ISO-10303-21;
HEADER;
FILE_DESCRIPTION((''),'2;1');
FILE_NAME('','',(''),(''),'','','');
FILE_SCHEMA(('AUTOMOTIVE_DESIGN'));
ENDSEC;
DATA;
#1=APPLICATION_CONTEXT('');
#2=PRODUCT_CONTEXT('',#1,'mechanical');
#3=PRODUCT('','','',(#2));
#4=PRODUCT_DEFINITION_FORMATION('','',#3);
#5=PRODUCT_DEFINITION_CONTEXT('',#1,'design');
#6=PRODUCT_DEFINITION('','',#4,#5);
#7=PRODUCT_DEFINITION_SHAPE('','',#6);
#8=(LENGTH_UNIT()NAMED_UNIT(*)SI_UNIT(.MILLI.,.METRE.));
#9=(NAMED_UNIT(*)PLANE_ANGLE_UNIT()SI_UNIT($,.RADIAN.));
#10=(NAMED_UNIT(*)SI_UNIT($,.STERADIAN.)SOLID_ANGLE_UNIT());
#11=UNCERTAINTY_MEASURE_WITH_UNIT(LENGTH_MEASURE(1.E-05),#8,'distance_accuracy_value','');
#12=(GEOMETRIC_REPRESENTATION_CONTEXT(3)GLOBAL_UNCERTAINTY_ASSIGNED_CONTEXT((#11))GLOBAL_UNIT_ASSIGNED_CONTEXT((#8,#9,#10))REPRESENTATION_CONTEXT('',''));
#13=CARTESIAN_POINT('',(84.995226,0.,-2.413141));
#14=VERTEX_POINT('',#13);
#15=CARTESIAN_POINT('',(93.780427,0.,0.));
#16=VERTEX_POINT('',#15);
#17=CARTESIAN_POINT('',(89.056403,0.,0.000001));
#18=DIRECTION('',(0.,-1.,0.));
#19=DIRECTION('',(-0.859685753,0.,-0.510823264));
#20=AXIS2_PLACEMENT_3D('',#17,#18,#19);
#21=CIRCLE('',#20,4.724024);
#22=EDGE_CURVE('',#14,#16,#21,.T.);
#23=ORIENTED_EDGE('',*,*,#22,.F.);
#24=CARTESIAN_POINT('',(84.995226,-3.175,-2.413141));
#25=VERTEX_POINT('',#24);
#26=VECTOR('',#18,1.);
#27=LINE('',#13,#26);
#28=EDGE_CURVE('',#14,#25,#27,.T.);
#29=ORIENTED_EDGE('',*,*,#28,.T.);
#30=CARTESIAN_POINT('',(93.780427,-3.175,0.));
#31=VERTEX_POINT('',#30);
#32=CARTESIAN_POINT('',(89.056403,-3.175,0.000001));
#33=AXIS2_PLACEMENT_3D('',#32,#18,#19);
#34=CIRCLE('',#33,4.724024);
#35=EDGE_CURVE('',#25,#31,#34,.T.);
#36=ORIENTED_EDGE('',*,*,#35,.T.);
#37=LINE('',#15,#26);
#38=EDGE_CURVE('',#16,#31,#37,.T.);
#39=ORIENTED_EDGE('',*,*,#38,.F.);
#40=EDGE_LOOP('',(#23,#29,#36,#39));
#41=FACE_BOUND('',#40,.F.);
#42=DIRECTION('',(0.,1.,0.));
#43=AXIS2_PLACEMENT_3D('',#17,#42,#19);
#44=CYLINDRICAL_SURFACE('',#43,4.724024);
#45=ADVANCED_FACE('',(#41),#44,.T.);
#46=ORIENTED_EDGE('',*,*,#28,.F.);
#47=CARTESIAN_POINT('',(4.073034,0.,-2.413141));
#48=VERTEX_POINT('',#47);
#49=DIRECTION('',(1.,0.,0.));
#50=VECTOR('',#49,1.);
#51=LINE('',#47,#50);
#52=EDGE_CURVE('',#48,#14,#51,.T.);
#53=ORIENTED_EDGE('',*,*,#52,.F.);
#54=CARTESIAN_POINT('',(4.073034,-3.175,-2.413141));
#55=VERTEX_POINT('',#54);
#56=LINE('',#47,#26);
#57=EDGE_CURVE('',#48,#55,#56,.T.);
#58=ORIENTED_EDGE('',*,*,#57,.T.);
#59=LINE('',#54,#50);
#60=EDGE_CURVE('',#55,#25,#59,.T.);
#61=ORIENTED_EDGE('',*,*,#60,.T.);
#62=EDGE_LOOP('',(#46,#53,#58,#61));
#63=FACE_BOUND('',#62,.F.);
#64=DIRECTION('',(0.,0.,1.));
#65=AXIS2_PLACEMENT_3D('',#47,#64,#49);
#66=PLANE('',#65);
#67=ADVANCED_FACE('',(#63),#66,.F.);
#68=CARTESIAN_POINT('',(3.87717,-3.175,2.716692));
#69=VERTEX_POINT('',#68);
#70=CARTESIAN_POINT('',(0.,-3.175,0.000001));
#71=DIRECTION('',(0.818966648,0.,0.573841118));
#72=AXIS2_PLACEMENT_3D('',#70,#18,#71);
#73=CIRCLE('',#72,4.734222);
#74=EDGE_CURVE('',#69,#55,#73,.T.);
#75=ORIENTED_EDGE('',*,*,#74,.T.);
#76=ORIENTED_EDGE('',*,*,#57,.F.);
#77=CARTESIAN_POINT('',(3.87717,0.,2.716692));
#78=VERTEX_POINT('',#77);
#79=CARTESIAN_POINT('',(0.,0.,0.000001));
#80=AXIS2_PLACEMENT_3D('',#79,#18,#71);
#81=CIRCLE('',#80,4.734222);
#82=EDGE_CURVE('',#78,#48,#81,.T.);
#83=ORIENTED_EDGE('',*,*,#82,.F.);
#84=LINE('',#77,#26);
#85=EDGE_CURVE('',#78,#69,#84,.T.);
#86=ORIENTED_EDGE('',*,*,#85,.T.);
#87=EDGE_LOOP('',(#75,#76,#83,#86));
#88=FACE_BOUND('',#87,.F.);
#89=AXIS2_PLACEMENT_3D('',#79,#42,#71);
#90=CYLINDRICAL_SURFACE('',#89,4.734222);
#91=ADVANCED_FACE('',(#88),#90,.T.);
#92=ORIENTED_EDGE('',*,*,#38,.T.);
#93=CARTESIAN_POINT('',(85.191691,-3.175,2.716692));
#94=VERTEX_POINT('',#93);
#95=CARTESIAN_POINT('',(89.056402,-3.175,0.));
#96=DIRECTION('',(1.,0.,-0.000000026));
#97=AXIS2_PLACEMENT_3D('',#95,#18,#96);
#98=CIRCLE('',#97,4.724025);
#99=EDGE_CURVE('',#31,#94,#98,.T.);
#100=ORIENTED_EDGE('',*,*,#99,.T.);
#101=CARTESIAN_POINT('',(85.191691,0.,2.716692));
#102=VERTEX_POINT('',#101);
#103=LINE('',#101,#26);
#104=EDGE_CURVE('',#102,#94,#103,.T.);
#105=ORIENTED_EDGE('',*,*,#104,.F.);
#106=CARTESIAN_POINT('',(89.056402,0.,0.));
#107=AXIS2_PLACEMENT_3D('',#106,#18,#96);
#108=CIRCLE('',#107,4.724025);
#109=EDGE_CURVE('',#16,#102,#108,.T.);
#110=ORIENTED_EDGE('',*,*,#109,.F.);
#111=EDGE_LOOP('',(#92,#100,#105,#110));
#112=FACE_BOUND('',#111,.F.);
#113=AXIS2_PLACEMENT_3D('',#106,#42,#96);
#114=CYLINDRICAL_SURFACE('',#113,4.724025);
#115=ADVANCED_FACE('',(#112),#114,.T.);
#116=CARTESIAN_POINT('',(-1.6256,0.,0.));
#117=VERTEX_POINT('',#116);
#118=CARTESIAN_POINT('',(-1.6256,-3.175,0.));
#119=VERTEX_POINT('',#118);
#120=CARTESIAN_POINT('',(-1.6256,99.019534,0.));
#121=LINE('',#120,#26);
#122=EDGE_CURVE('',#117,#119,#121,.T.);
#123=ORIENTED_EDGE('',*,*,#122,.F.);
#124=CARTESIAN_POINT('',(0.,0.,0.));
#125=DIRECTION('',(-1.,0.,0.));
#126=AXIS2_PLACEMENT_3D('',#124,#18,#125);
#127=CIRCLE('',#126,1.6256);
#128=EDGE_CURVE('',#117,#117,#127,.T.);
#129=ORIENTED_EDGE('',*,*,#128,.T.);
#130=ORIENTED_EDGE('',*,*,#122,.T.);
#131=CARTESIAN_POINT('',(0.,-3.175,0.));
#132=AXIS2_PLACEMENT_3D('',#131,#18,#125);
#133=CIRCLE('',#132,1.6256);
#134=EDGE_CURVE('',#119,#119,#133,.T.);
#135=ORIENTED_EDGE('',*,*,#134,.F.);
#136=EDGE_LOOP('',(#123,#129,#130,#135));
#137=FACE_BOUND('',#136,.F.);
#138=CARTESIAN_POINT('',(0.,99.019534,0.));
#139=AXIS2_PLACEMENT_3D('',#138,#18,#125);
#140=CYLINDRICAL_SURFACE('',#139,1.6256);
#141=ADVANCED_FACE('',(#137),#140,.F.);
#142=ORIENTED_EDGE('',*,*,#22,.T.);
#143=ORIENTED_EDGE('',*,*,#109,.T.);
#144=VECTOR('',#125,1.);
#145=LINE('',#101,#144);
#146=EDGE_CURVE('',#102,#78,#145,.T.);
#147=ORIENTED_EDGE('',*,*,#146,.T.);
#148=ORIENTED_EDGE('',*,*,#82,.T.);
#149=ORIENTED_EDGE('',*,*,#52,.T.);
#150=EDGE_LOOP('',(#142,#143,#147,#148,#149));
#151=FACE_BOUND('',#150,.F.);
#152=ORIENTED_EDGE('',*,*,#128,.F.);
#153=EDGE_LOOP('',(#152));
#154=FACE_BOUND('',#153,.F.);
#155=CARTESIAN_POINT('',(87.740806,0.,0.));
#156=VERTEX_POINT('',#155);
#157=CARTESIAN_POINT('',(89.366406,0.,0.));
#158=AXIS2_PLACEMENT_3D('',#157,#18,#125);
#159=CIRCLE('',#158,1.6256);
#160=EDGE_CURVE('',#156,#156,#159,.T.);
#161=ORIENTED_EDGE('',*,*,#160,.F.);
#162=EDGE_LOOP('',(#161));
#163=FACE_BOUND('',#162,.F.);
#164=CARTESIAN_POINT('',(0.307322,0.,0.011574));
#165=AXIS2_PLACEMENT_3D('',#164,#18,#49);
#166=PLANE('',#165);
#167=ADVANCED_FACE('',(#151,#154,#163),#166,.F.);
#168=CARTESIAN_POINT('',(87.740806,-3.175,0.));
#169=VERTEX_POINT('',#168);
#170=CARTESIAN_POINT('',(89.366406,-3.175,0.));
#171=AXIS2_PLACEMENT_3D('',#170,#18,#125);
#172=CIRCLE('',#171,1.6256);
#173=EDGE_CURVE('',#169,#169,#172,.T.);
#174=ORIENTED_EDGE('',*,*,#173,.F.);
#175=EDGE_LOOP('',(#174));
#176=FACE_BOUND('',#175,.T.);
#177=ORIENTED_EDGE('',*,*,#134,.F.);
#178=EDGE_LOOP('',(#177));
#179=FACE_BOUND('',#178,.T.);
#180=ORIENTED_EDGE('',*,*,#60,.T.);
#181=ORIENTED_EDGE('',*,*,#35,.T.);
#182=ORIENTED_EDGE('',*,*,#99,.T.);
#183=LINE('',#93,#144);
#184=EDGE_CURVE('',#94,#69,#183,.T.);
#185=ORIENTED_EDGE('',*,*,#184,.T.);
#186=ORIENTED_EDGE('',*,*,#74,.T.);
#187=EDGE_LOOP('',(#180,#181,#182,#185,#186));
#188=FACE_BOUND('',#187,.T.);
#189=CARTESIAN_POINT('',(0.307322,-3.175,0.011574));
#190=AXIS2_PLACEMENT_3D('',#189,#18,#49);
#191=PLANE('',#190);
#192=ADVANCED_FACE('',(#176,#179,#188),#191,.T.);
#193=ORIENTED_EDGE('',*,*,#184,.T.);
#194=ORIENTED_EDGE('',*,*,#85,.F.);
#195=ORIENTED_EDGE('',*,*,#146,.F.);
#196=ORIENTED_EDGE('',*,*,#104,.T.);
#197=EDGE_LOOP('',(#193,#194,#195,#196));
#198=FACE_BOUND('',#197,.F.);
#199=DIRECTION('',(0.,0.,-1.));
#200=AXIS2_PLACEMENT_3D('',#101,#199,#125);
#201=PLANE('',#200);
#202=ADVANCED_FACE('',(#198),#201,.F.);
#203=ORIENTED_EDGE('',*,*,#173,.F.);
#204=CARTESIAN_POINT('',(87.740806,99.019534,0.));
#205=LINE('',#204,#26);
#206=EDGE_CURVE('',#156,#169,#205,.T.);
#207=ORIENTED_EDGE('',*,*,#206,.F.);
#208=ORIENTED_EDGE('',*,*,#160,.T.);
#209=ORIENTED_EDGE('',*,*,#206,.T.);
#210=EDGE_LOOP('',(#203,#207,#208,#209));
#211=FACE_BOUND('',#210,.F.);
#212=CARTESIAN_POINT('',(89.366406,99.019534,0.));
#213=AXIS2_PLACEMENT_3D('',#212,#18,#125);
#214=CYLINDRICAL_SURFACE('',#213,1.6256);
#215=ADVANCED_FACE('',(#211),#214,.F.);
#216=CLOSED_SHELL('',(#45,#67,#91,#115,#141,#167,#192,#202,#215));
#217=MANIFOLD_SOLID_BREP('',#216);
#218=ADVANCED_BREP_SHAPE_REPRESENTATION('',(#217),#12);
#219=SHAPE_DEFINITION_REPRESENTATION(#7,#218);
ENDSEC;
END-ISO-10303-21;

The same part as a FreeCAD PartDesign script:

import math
import FreeCAD as App
import Part
import Sketcher

V = App.Vector
Q = App.Units.Quantity

doc = App.newDocument("Part")
params = doc.addObject("Spreadsheet::Sheet", "Params")
for row, (alias, value) in enumerate([
    ("pad1_length", "0.125 in"),
    ("sketch2_diameter", "0.128 in"),
    ("hole_diameter", "0.128 in"),
], start=1):
    params.set(f"A{row}", alias)
    params.set(f"B{row}", "=" + value)
    params.setAlias(f"B{row}", alias)

body = doc.addObject("PartDesign::Body", "Body")

sketch1 = doc.addObject("Sketcher::SketchObject", "Sketch")
body.addObject(sketch1)
sketch1.AttachmentSupport = (doc.XZ_Plane, [""])
sketch1.MapMode = "FlatFace"
sketch1.addGeometry(Part.ArcOfCircle(Part.Circle(V(0, 0, 0), V(0, 0, 1), 4.7), math.radians(35), math.radians(329)), False)
sketch1.addGeometry(Part.LineSegment(V(4.1, -2.4, 0), V(85, -2.4, 0)), False)
sketch1.addGeometry(Part.ArcOfCircle(Part.Circle(V(89.1, 0, 0), V(0, 0, 1), 4.7), math.radians(-149), math.radians(0)), False)
sketch1.addGeometry(Part.ArcOfCircle(Part.Circle(V(89.1, 0, 0), V(0, 0, 1), 4.7), math.radians(0), math.radians(145)), False)
sketch1.addGeometry(Part.LineSegment(V(85.2, 2.7, 0), V(3.9, 2.7, 0)), False)
sketch1.addConstraint(Sketcher.Constraint("Coincident", 0, 2, 1, 1))
sketch1.addConstraint(Sketcher.Constraint("Coincident", 1, 2, 2, 1))
sketch1.addConstraint(Sketcher.Constraint("Tangent", 2, 2, 3, 1))
sketch1.addConstraint(Sketcher.Constraint("Coincident", 3, 2, 4, 1))
sketch1.addConstraint(Sketcher.Constraint("Coincident", 4, 2, 0, 1))
sketch1.addConstraint(Sketcher.Constraint("Horizontal", 1))
sketch1.addConstraint(Sketcher.Constraint("Horizontal", 4))
sketch1.addConstraint(Sketcher.Constraint("Coincident", 0, 3, -1, 1))
sketch1.addConstraint(Sketcher.Constraint("Equal", 2, 3))
sketch1.addConstraint(Sketcher.Constraint("PointOnObject", 2, 3, -1))
sketch1.addConstraint(Sketcher.Constraint("PointOnObject", 2, 2, -1))
sketch1.addConstraint(Sketcher.Constraint("Radius", 0, 4.734222))
sketch1.addConstraint(Sketcher.Constraint("Radius", 2, 4.724024))
sketch1.addConstraint(Sketcher.Constraint("DistanceX", 1, 1, 1, 2, 80.922192))
sketch1.addConstraint(Sketcher.Constraint("DistanceX", 4, 2, 4, 1, 81.314521))
sketch1.addConstraint(Sketcher.Constraint("DistanceX", 1, 2, 2, 2, 8.785201))
pad1 = doc.addObject("PartDesign::Pad", "Pad")
body.addObject(pad1)
pad1.Profile = sketch1
pad1.setExpression("Length", "Params.pad1_length")

sketch2 = doc.addObject("Sketcher::SketchObject", "Sketch001")
body.addObject(sketch2)
sketch2.AttachmentSupport = (doc.XZ_Plane, [""])
sketch2.MapMode = "FlatFace"
sketch2.addGeometry(Part.Circle(V(0, 0, 0), V(0, 0, 1), 1.6), False)
sketch2.addGeometry(Part.Circle(V(89.4, 0, 0), V(0, 0, 1), 1.6), False)
sketch2.addConstraint(Sketcher.Constraint("Coincident", 0, 3, -1, 1))
sketch2.addConstraint(Sketcher.Constraint("Equal", 0, 1))
sketch2.addConstraint(Sketcher.Constraint("PointOnObject", 1, 3, -1))
sketch2.addConstraint(Sketcher.Constraint("Diameter", 0, Q("0.128 in")))
sketch2.addConstraint(Sketcher.Constraint("DistanceX", -1, 1, 1, 3, 89.366406))
sketch2.setExpression("Constraints[3]", "Params.sketch2_diameter")
doc.recompute()
hole = doc.addObject("PartDesign::Hole", "Hole")
body.addObject(hole)
hole.Profile = sketch2
hole.ThreadType = "None"
hole.setExpression("Diameter", "Params.hole_diameter")
hole.DepthType = "ThroughAll"
hole.Reversed = True

doc.recompute()
